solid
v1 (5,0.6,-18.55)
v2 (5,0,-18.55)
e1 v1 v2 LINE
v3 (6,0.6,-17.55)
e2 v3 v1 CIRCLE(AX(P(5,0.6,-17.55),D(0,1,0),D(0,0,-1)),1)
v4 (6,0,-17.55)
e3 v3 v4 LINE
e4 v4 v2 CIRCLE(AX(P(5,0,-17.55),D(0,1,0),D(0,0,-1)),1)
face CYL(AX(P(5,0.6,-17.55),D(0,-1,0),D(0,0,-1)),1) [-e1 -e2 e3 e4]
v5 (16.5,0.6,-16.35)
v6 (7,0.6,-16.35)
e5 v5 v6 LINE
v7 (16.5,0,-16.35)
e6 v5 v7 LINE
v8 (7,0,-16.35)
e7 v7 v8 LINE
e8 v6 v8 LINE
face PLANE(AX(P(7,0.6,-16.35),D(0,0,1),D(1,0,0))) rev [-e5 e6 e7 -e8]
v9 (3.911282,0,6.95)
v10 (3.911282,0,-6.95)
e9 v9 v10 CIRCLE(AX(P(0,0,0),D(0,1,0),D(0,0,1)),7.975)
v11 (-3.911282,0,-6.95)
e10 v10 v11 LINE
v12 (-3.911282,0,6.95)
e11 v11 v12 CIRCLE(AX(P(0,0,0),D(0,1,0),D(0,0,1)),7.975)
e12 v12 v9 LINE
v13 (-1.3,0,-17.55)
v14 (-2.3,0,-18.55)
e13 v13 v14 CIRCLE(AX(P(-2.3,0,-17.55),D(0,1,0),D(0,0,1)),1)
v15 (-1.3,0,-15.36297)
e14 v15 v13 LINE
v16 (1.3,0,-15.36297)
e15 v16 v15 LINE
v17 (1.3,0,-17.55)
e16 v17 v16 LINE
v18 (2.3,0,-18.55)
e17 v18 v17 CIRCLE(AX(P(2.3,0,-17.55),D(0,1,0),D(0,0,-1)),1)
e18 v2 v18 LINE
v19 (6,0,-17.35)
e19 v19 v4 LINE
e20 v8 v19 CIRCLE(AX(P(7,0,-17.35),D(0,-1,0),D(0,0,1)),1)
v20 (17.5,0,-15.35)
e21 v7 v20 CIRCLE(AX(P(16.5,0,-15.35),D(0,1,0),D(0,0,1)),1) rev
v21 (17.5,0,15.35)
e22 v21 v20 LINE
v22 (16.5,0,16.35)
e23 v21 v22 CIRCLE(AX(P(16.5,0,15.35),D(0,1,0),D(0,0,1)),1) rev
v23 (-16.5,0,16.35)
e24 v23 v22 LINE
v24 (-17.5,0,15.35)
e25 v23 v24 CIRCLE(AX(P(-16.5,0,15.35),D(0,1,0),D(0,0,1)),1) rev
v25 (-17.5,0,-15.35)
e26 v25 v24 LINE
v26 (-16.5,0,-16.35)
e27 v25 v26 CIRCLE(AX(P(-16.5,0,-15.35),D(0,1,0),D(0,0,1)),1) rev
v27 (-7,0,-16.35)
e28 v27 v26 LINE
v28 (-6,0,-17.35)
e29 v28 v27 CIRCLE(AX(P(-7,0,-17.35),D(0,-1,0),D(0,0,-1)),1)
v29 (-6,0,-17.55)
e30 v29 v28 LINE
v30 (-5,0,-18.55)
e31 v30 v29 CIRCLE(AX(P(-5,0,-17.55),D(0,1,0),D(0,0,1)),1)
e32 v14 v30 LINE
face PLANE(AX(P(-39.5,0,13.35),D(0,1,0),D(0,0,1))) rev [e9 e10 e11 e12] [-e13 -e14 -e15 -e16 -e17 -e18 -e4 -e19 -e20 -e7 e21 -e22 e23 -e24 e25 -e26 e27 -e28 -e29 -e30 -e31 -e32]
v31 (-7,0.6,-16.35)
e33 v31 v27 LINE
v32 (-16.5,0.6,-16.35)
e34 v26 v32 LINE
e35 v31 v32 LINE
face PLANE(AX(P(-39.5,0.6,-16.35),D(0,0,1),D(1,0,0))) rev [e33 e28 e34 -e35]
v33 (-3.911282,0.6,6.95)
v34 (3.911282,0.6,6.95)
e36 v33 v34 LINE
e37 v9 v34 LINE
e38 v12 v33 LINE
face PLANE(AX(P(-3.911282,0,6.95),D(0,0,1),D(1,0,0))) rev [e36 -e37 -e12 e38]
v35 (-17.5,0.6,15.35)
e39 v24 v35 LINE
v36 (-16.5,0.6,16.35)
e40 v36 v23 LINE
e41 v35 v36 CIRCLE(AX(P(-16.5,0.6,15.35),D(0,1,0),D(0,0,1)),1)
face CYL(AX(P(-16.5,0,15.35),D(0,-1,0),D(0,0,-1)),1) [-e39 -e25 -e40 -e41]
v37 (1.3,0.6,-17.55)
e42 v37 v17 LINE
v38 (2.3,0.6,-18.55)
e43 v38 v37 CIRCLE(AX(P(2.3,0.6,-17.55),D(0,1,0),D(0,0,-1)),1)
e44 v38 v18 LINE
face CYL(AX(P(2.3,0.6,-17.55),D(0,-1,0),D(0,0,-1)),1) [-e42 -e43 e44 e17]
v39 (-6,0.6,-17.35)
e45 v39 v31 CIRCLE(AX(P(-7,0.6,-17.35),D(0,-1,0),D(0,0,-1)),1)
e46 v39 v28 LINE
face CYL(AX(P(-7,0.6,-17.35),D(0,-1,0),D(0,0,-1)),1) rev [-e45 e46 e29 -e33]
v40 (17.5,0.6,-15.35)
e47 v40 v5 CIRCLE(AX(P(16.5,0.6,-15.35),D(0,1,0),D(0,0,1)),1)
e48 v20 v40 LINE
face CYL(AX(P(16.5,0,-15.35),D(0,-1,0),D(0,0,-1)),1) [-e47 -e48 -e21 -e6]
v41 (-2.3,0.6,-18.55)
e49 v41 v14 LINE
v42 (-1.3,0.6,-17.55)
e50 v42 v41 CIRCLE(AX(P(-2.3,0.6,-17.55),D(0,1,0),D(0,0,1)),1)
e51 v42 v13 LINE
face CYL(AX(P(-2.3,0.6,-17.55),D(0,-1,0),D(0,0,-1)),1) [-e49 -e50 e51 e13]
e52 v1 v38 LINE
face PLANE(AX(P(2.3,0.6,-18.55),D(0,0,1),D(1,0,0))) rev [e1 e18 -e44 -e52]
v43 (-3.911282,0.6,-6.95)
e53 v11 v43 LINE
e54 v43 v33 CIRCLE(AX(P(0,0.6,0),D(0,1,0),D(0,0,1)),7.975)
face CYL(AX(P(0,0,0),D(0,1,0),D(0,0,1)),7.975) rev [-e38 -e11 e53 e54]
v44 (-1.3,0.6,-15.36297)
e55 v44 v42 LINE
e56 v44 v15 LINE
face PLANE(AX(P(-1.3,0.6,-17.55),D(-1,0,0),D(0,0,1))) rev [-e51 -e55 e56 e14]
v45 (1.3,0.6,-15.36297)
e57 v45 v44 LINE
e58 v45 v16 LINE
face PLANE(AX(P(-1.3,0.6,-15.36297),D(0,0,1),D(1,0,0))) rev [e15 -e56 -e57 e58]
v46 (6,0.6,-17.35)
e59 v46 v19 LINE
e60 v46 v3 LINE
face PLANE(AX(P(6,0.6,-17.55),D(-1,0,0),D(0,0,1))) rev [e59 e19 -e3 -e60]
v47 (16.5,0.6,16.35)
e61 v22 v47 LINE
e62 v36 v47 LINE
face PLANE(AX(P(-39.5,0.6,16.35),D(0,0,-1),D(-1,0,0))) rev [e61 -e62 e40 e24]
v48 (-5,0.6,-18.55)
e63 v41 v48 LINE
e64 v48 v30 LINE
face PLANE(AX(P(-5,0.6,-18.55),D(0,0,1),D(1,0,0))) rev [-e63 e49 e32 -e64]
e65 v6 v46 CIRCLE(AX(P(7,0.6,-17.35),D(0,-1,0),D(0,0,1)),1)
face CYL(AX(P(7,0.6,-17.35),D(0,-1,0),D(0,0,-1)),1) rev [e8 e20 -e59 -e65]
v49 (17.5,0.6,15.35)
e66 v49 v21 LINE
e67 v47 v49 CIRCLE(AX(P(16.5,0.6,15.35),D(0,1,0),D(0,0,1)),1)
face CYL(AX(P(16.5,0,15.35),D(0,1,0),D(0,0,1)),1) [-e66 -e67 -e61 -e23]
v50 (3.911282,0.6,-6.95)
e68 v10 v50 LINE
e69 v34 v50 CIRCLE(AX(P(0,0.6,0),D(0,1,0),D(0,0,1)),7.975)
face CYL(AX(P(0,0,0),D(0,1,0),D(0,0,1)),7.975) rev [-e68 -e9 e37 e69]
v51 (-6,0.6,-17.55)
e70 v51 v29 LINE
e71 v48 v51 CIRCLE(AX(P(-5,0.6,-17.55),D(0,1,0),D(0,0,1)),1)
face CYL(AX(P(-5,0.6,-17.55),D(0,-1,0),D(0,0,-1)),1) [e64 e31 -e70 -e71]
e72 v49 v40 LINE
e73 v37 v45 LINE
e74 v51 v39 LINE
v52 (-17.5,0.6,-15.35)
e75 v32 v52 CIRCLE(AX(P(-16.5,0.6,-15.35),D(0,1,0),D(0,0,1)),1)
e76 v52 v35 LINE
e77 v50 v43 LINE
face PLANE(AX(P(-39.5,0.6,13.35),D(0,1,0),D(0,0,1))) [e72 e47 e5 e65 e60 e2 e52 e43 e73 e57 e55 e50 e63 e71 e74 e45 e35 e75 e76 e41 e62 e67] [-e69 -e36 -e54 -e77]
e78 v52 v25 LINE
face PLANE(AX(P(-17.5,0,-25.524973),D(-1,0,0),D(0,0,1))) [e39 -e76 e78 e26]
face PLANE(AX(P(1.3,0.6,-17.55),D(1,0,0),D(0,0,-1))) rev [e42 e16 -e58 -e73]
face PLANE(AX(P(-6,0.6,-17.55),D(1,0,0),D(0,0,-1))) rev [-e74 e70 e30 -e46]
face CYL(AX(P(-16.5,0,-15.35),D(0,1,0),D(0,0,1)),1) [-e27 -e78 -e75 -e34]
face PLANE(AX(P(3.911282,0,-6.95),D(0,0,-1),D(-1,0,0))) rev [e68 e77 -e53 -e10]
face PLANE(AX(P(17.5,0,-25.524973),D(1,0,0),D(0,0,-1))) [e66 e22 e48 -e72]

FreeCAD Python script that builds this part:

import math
import FreeCAD as App
import Part
import Sketcher
from FreeCAD import Vector
Q = App.Units.Quantity


def edges_at(feature, points):
    """Names of the edges that pass closest to the given points."""
    edges = feature.Shape.Edges
    near = lambda p: min(range(len(edges)), key=lambda i: edges[i].distToShape(Part.Vertex(*p))[0])
    return sorted({f"Edge{near(p) + 1}" for p in points})


def add_polygon(sketch, points):
    """Adds a closed chain of lines whose ends are joined by coincident constraints."""
    first, n = sketch.GeometryCount, len(points)
    for a, b in zip(points, points[1:] + points[:1]):
        sketch.addGeometry(Part.LineSegment(App.Vector(*a, 0), App.Vector(*b, 0)), False)
    for i in range(n):
        sketch.addConstraint(Sketcher.Constraint("Coincident", first + i, 2, first + (i + 1) % n, 1))

doc = App.newDocument("Part")
params = doc.addObject("Spreadsheet::Sheet", "Params")
for row, (alias, value) in enumerate([
    ("sketch1_radius", "1 mm"),
    ("sketch1_radius2", "3 mm"),
    ("sketch1_width", "79 mm"),
    ("sketch1_width2", "32.5 mm"),
    ("sketch1_width3", "2.7 mm"),
    ("pad1_length", "0.6 mm"),
    ("sketch2_width", "35 mm"),
    ("fillet_radius", "1 mm"),
], start=1):
    params.set(f"A{row}", alias)
    params.set(f"B{row}", "=" + value)
    params.setAlias(f"B{row}", alias)

body = doc.addObject("PartDesign::Body", "Body")

sketch1 = body.newObject("Sketcher::SketchObject", "Sketch")
sketch1.AttachmentSupport = (doc.getObject("XZ_Plane"), [""])
sketch1.MapMode = "FlatFace"
sketch1.addGeometry([
    Part.LineSegment(Vector(39.5, -16.35, 0), Vector(7, -16.35, 0)),
    Part.ArcOfCircle(Part.Circle(Vector(7, -17.35, 0), Vector(0, 0, 1), 1), math.radians(90), math.radians(180)),
    Part.LineSegment(Vector(6, -17.35, 0), Vector(6, -17.55, 0)),
    Part.ArcOfCircle(Part.Circle(Vector(5, -17.55, 0), Vector(0, 0, 1), 1), math.radians(-90), math.radians(0)),
    Part.LineSegment(Vector(5, -18.55, 0), Vector(2.3, -18.55, 0)),
    Part.ArcOfCircle(Part.Circle(Vector(2.3, -17.55, 0), Vector(0, 0, 1), 1), math.radians(-180), math.radians(-90)),
    Part.LineSegment(Vector(1.3, -17.55, 0), Vector(1.3, -15.36, 0)),
    Part.LineSegment(Vector(1.3, -15.36, 0), Vector(-1.3, -15.36, 0)),
    Part.LineSegment(Vector(-1.3, -15.36, 0), Vector(-1.3, -17.55, 0)),
    Part.ArcOfCircle(Part.Circle(Vector(-2.3, -17.55, 0), Vector(0, 0, 1), 1), math.radians(-90), math.radians(0)),
    Part.LineSegment(Vector(-2.3, -18.55, 0), Vector(-5, -18.55, 0)),
    Part.ArcOfCircle(Part.Circle(Vector(-5, -17.55, 0), Vector(0, 0, 1), 1), math.radians(-180), math.radians(-90)),
    Part.LineSegment(Vector(-6, -17.55, 0), Vector(-6, -17.35, 0)),
    Part.ArcOfCircle(Part.Circle(Vector(-7, -17.35, 0), Vector(0, 0, 1), 1), math.radians(0), math.radians(90)),
    Part.LineSegment(Vector(-7, -16.35, 0), Vector(-39.5, -16.35, 0)),
    Part.ArcOfCircle(Part.Circle(Vector(-39.5, -13.35, 0), Vector(0, 0, 1), 3), math.radians(180), math.radians(270)),
    Part.LineSegment(Vector(-42.5, -13.35, 0), Vector(-42.5, 13.35, 0)),
    Part.ArcOfCircle(Part.Circle(Vector(-39.5, 13.35, 0), Vector(0, 0, 1), 3), math.radians(90), math.radians(180)),
    Part.LineSegment(Vector(-39.5, 16.35, 0), Vector(39.5, 16.35, 0)),
    Part.ArcOfCircle(Part.Circle(Vector(39.5, 13.35, 0), Vector(0, 0, 1), 3), math.radians(0), math.radians(90)),
    Part.LineSegment(Vector(42.5, 13.35, 0), Vector(42.5, -13.35, 0)),
    Part.ArcOfCircle(Part.Circle(Vector(39.5, -13.35, 0), Vector(0, 0, 1), 3), math.radians(-90), math.radians(0)),
    Part.LineSegment(Vector(-3.87, -6.8, 0), Vector(3.87, -6.8, 0)),
    Part.ArcOfCircle(Part.Circle(Vector(0, 0, 0), Vector(0, 0, 1), 7.83), math.radians(-60), math.radians(60)),
    Part.LineSegment(Vector(3.87, 6.8, 0), Vector(-3.87, 6.8, 0)),
    Part.ArcOfCircle(Part.Circle(Vector(0, 0, 0), Vector(0, 0, 1), 7.83), math.radians(120), math.radians(240)),
], False)
sketch1.addConstraint([
    Sketcher.Constraint("Tangent", 0, 2, 1, 1),
    Sketcher.Constraint("Tangent", 1, 2, 2, 1),
    Sketcher.Constraint("Tangent", 2, 2, 3, 2),
    Sketcher.Constraint("Tangent", 3, 1, 4, 1),
    Sketcher.Constraint("Tangent", 4, 2, 5, 2),
    Sketcher.Constraint("Tangent", 5, 1, 6, 1),
    Sketcher.Constraint("Coincident", 6, 2, 7, 1),
    Sketcher.Constraint("Coincident", 7, 2, 8, 1),
    Sketcher.Constraint("Tangent", 8, 2, 9, 2),
    Sketcher.Constraint("Tangent", 9, 1, 10, 1),
    Sketcher.Constraint("Tangent", 10, 2, 11, 2),
    Sketcher.Constraint("Tangent", 11, 1, 12, 1),
    Sketcher.Constraint("Tangent", 12, 2, 13, 1),
    Sketcher.Constraint("Tangent", 13, 2, 14, 1),
    Sketcher.Constraint("Tangent", 14, 2, 15, 2),
    Sketcher.Constraint("Tangent", 15, 1, 16, 1),
    Sketcher.Constraint("Tangent", 16, 2, 17, 2),
    Sketcher.Constraint("Tangent", 17, 1, 18, 1),
    Sketcher.Constraint("Tangent", 18, 2, 19, 2),
    Sketcher.Constraint("Tangent", 19, 1, 20, 1),
    Sketcher.Constraint("Tangent", 20, 2, 21, 2),
    Sketcher.Constraint("Tangent", 21, 1, 0, 1),
    Sketcher.Constraint("Coincident", 22, 2, 23, 1),
    Sketcher.Constraint("Coincident", 23, 2, 24, 1),
    Sketcher.Constraint("Coincident", 24, 2, 25, 1),
    Sketcher.Constraint("Coincident", 25, 2, 22, 1),
    Sketcher.Constraint("Horizontal", 0),
    Sketcher.Constraint("Vertical", 2),
    Sketcher.Constraint("Horizontal", 4),
    Sketcher.Constraint("Vertical", 6),
    Sketcher.Constraint("Horizontal", 7),
    Sketcher.Constraint("Vertical", 8),
    Sketcher.Constraint("Horizontal", 10),
    Sketcher.Constraint("Vertical", 12),
    Sketcher.Constraint("Horizontal", 14),
    Sketcher.Constraint("Vertical", 16),
    Sketcher.Constraint("Horizontal", 18),
    Sketcher.Constraint("Vertical", 20),
    Sketcher.Constraint("Horizontal", 22),
    Sketcher.Constraint("Horizontal", 24),
    Sketcher.Constraint("Coincident", 23, 3, -1, 1),
    Sketcher.Constraint("Coincident", 25, 3, -1, 1),
    Sketcher.Constraint("Equal", 1, 3),
    Sketcher.Constraint("Equal", 3, 5),
    Sketcher.Constraint("Equal", 5, 9),
    Sketcher.Constraint("Equal", 9, 11),
    Sketcher.Constraint("Equal", 11, 13),
    Sketcher.Constraint("Equal", 15, 17),
    Sketcher.Constraint("Equal", 17, 19),
    Sketcher.Constraint("Equal", 19, 21),
    Sketcher.Constraint("Equal", 23, 25),
    Sketcher.Constraint("Symmetric", 15, 3, 19, 3, -1, 1),
    Sketcher.Constraint("Symmetric", 5, 3, 9, 3, -2),
    Sketcher.Constraint("Symmetric", 1, 3, 13, 3, -2),
    Sketcher.Constraint("Vertical", 22, 2, 23, 2),
    Sketcher.Constraint("Radius", 1, Q("1 mm")),
    Sketcher.Constraint("Radius", 15, Q("3 mm")),
    Sketcher.Constraint("DistanceX", 18, 1, 18, 2, Q("79 mm")),
    Sketcher.Constraint("DistanceX", 0, 2, 0, 1, Q("32.5 mm")),
    Sketcher.Constraint("DistanceX", 4, 2, 4, 1, Q("2.7 mm")),
    Sketcher.Constraint("DistanceY", 2, 2, 2, 1, Q("0.2 mm")),
    Sketcher.Constraint("DistanceY", 16, 1, 16, 2, Q("26.7 mm")),
    Sketcher.Constraint("Radius", 23, Q("7.825 mm")),
    Sketcher.Constraint("DistanceY", 22, 2, -1, 1, Q("6.8 mm")),
    Sketcher.Constraint("DistanceY", 6, 1, 6, 2, Q("2.18703 mm")),
])
sketch1.setExpression("Constraints[55]", "Params.sketch1_radius")
sketch1.setExpression("Constraints[56]", "Params.sketch1_radius2")
sketch1.setExpression("Constraints[57]", "Params.sketch1_width")
sketch1.setExpression("Constraints[58]", "Params.sketch1_width2")
sketch1.setExpression("Constraints[59]", "Params.sketch1_width3")
pad1 = body.newObject("PartDesign::Pad", "Pad")
pad1.Profile = sketch1
pad1.setExpression("Length", "Params.pad1_length")
pad1.Reversed = True

sketch2 = body.newObject("Sketcher::SketchObject", "Sketch001")
sketch2.AttachmentSupport = (doc.getObject("XZ_Plane"), [""])
sketch2.MapMode = "FlatFace"
sketch2.AttachmentOffset = App.Placement(Vector(0, 0, -0.6), App.Rotation())
add_polygon(sketch2, [(-60, -47), (-60, 44), (58, 44), (58, -47)])
add_polygon(sketch2, [(18, 26), (-18, 26), (-18, -26), (18, -26)])
sketch2.addConstraint([
    Sketcher.Constraint("Vertical", 0),
    Sketcher.Constraint("Horizontal", 1),
    Sketcher.Constraint("Vertical", 2),
    Sketcher.Constraint("Horizontal", 3),
    Sketcher.Constraint("Horizontal", 4),
    Sketcher.Constraint("Vertical", 5),
    Sketcher.Constraint("Horizontal", 6),
    Sketcher.Constraint("Vertical", 7),
    Sketcher.Constraint("Symmetric", 4, 2, 6, 2, -1, 1),
    Sketcher.Constraint("DistanceX", 4, 2, 4, 1, Q("35 mm")),
    Sketcher.Constraint("DistanceY", 0, 1, 0, 2, Q("91.146129 mm")),
    Sketcher.Constraint("DistanceX", 1, 1, 1, 2, Q("117.961397 mm")),
    Sketcher.Constraint("DistanceY", 5, 2, 5, 1, Q("51.049947 mm")),
    Sketcher.Constraint("DistanceX", -1, 1, 1, 2, Q("57.981531 mm")),
    Sketcher.Constraint("DistanceY", 4, 2, 0, 2, Q("18.95089 mm")),
])
sketch2.setExpression("Constraints[17]", "Params.sketch2_width")
pocket1 = body.newObject("PartDesign::Pocket", "Pocket")
pocket1.Profile = sketch2
pocket1.Type = "ThroughAll"
pocket1.Reversed = True
doc.recompute()

fillet = body.newObject("PartDesign::Fillet", "Fillet")
fillet.Base = (pocket1, edges_at(pocket1, [
    (-17.5, 0.3, -16.35),
    (17.5, 0.3, -16.35),
    (17.5, 0.3, 16.35),
    (-17.5, 0.3, 16.35),
]))
fillet.setExpression("Radius", "Params.fillet_radius")

sketch3 = body.newObject("Sketcher::SketchObject", "Sketch002")
sketch3.AttachmentSupport = (doc.getObject("XZ_Plane"), [""])
sketch3.MapMode = "FlatFace"
sketch3.AttachmentOffset = App.Placement(Vector(0, 0, -0.6), App.Rotation())
sketch3.addGeometry([
    Part.LineSegment(Vector(-4, 7, 0), Vector(4, 7, 0)),
    Part.ArcOfCircle(Part.Circle(Vector(0, 0, 0), Vector(0, 0, 1), 8), math.radians(-61), math.radians(61)),
    Part.LineSegment(Vector(4, -7, 0), Vector(-4, -7, 0)),
    Part.ArcOfCircle(Part.Circle(Vector(0, 0, 0), Vector(0, 0, 1), 8), math.radians(119), math.radians(241)),
], False)
sketch3.addConstraint([
    Sketcher.Constraint("Coincident", 0, 2, 1, 2),
    Sketcher.Constraint("Coincident", 1, 1, 2, 1),
    Sketcher.Constraint("Coincident", 2, 2, 3, 2),
    Sketcher.Constraint("Coincident", 3, 1, 0, 1),
    Sketcher.Constraint("Horizontal", 0),
    Sketcher.Constraint("Horizontal", 2),
    Sketcher.Constraint("Coincident", 1, 3, -1, 1),
    Sketcher.Constraint("Coincident", 3, 3, -1, 1),
    Sketcher.Constraint("Equal", 1, 3),
    Sketcher.Constraint("Vertical", 0, 2, 1, 1),
    Sketcher.Constraint("Radius", 1, Q("7.975 mm")),
    Sketcher.Constraint("DistanceY", 1, 1, 0, 2, Q("13.9 mm")),
])
pocket2 = body.newObject("PartDesign::Pocket", "Pocket001")
pocket2.Profile = sketch3
pocket2.Type = "ThroughAll"
pocket2.Reversed = True

doc.recompute()
